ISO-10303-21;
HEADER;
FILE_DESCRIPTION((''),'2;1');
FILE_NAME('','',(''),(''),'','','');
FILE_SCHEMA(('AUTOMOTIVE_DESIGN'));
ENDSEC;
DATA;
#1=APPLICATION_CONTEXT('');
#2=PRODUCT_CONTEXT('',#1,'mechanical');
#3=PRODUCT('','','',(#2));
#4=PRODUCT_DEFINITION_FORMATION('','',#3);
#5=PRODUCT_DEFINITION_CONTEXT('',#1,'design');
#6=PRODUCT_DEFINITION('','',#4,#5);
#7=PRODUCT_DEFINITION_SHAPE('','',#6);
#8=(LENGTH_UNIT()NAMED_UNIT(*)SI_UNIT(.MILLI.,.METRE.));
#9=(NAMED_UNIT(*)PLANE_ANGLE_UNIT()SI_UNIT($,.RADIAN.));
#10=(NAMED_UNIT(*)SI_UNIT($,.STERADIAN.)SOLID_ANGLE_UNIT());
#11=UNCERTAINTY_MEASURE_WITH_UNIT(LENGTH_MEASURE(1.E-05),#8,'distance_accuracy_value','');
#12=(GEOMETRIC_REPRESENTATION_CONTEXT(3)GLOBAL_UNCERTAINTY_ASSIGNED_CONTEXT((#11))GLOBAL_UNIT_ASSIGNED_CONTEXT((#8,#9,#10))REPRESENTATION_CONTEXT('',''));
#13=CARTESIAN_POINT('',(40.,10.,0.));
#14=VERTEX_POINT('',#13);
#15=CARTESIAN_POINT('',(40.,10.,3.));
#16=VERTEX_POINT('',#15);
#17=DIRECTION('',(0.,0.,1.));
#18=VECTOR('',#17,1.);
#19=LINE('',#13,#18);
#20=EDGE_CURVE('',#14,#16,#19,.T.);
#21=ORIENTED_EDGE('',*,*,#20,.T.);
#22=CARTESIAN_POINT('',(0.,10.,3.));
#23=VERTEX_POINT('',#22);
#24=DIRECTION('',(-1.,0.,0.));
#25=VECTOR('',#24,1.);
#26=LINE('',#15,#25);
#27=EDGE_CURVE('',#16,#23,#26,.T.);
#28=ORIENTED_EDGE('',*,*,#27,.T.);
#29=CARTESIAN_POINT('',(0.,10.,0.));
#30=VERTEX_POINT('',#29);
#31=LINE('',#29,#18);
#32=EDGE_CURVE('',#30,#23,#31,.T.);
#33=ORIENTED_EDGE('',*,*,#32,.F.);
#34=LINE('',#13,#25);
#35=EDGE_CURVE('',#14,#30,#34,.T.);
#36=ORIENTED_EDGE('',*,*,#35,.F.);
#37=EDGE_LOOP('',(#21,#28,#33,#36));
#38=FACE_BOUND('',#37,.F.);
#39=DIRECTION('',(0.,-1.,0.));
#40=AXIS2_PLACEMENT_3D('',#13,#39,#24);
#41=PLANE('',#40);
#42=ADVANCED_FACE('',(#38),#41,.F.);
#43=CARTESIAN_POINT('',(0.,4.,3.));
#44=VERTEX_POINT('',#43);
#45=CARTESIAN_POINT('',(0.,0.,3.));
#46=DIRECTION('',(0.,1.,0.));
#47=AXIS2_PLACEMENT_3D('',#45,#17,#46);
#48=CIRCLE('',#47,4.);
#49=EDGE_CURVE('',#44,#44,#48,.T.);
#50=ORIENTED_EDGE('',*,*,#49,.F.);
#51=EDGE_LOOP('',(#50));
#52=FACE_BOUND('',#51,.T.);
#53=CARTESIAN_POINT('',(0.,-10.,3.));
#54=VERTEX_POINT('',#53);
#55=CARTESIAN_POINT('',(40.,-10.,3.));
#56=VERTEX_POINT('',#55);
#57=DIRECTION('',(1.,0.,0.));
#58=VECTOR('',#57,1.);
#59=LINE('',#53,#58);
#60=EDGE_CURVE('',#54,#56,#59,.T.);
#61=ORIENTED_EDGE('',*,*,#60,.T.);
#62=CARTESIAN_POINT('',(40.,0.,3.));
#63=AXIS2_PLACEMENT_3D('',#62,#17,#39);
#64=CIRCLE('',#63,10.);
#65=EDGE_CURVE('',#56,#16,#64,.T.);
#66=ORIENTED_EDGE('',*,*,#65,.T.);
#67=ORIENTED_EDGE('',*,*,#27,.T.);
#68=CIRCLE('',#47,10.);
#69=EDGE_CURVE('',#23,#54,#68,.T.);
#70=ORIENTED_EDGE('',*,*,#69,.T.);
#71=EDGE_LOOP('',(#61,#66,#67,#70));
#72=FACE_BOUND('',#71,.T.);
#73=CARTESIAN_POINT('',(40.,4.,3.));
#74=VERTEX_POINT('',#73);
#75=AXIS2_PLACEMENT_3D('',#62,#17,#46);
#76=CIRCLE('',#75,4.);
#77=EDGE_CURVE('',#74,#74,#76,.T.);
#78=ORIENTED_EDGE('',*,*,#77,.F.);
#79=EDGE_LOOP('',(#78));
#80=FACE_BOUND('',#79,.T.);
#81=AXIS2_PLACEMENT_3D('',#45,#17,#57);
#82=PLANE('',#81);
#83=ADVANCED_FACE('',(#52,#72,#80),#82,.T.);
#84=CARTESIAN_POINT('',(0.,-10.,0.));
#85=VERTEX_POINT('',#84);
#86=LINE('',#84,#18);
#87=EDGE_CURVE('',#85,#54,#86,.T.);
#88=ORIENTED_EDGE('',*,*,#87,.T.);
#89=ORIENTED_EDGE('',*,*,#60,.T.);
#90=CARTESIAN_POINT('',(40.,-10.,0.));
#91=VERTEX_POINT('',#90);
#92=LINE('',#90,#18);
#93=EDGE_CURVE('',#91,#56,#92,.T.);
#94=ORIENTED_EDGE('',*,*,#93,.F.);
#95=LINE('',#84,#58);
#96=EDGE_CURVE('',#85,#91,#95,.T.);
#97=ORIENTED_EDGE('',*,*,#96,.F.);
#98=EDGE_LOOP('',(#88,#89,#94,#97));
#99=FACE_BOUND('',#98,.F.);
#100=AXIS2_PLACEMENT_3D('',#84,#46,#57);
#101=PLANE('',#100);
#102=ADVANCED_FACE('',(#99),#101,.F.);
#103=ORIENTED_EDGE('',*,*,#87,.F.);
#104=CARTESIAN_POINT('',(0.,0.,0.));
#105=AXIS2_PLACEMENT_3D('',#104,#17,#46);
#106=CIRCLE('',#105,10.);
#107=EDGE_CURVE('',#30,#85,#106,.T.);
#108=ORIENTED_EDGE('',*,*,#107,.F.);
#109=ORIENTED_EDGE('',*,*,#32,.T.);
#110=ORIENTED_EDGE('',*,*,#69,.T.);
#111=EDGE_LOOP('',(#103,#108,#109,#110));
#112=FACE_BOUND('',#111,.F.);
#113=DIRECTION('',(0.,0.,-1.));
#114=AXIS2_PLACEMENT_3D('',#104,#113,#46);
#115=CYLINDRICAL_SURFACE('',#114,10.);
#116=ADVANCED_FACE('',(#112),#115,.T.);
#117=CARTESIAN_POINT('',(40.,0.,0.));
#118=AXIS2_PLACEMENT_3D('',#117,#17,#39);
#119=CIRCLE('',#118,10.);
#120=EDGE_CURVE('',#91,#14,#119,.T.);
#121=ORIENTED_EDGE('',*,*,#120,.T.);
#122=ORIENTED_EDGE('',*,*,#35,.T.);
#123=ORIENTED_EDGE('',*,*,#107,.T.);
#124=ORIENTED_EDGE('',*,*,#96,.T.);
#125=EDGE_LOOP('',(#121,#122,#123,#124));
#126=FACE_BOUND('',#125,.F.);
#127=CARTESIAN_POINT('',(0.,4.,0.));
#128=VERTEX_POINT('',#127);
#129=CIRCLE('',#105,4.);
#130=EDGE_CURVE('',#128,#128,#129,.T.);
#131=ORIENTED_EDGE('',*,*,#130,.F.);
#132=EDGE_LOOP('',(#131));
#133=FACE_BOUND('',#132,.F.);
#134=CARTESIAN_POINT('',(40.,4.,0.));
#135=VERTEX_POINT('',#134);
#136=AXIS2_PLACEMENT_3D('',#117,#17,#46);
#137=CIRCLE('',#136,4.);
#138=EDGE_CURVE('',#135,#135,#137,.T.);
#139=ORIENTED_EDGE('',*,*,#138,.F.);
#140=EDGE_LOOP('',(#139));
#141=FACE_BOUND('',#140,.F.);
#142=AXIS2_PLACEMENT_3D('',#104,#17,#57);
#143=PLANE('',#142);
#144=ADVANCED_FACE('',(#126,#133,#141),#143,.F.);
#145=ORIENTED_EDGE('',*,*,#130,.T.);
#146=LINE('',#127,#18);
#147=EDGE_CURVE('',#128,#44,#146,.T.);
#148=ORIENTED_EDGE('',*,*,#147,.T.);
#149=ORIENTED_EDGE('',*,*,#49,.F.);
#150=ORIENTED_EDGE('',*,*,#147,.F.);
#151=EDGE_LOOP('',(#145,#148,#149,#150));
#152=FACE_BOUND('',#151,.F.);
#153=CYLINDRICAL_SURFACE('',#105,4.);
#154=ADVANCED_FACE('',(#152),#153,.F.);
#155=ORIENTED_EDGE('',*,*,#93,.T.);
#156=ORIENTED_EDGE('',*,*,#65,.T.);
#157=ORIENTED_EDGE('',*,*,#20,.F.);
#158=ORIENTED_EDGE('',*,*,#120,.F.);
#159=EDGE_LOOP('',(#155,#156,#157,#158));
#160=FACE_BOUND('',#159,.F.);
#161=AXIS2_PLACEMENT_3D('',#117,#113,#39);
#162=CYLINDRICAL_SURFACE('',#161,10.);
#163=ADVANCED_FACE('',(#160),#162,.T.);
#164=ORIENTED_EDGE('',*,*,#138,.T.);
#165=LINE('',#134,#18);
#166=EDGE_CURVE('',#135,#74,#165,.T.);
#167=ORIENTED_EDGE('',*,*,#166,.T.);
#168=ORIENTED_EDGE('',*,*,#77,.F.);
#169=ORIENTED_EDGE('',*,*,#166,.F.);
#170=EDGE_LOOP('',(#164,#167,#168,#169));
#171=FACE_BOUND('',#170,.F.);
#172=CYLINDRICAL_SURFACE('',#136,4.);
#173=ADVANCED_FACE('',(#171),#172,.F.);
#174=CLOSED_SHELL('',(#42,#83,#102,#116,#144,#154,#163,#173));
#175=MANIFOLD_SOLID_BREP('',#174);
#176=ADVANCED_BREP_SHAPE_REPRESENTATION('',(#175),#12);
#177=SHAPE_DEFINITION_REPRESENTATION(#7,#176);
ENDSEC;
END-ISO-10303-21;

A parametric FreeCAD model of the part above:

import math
import FreeCAD as App
import Part
import Sketcher
Q = App.Units.Quantity

doc = App.newDocument("Part")
body = doc.addObject("PartDesign::Body", "Body")

sketch1 = body.newObject("Sketcher::SketchObject", "Sketch")
sketch1.AttachmentSupport = (doc.getObject("XY_Plane"), [""])
sketch1.MapMode = "FlatFace"
sketch1.addGeometry([
    Part.ArcOfCircle(Part.Circle(App.Vector(0, 0, 0), App.Vector(0, 0, 1), 10), math.radians(90), math.radians(270)),
    Part.LineSegment(App.Vector(0, -10, 0), App.Vector(40, -10, 0)),
    Part.ArcOfCircle(Part.Circle(App.Vector(40, 0, 0), App.Vector(0, 0, 1), 10), math.radians(-90), math.radians(90)),
    Part.LineSegment(App.Vector(40, 10, 0), App.Vector(0, 10, 0)),
], False)
sketch1.addConstraint([
    Sketcher.Constraint("Tangent", 0, 2, 1, 1),
    Sketcher.Constraint("Tangent", 1, 2, 2, 1),
    Sketcher.Constraint("Tangent", 2, 2, 3, 1),
    Sketcher.Constraint("Tangent", 3, 2, 0, 1),
    Sketcher.Constraint("Horizontal", 1),
    Sketcher.Constraint("Horizontal", 3),
    Sketcher.Constraint("Coincident", 0, 3, -1, 1),
    Sketcher.Constraint("Radius", 0, Q("10 mm")),
    Sketcher.Constraint("DistanceX", 1, 1, 1, 2, Q("40 mm")),
])
pad1 = body.newObject("PartDesign::Pad", "Pad")
pad1.Profile = sketch1
pad1.Length = 3

sketch2 = body.newObject("Sketcher::SketchObject", "Sketch001")
sketch2.AttachmentSupport = (doc.getObject("XY_Plane"), [""])
sketch2.MapMode = "FlatFace"
sketch2.addGeometry([
    Part.Circle(App.Vector(0, 0, 0), App.Vector(0, 0, 1), 4),
    Part.Circle(App.Vector(40, 0, 0), App.Vector(0, 0, 1), 4),
], False)
sketch2.addConstraint([
    Sketcher.Constraint("Coincident", 0, 3, -1, 1),
    Sketcher.Constraint("Equal", 0, 1),
    Sketcher.Constraint("PointOnObject", 1, 3, -1),
    Sketcher.Constraint("Diameter", 0, Q("8 mm")),
    Sketcher.Constraint("DistanceX", -1, 1, 1, 3, Q("40 mm")),
])
doc.recompute()
hole = body.newObject("PartDesign::Hole", "Hole")
hole.Profile = sketch2
hole.ThreadType = "None"
hole.Diameter = 8
hole.DepthType = "ThroughAll"
hole.Reversed = True

doc.recompute()
